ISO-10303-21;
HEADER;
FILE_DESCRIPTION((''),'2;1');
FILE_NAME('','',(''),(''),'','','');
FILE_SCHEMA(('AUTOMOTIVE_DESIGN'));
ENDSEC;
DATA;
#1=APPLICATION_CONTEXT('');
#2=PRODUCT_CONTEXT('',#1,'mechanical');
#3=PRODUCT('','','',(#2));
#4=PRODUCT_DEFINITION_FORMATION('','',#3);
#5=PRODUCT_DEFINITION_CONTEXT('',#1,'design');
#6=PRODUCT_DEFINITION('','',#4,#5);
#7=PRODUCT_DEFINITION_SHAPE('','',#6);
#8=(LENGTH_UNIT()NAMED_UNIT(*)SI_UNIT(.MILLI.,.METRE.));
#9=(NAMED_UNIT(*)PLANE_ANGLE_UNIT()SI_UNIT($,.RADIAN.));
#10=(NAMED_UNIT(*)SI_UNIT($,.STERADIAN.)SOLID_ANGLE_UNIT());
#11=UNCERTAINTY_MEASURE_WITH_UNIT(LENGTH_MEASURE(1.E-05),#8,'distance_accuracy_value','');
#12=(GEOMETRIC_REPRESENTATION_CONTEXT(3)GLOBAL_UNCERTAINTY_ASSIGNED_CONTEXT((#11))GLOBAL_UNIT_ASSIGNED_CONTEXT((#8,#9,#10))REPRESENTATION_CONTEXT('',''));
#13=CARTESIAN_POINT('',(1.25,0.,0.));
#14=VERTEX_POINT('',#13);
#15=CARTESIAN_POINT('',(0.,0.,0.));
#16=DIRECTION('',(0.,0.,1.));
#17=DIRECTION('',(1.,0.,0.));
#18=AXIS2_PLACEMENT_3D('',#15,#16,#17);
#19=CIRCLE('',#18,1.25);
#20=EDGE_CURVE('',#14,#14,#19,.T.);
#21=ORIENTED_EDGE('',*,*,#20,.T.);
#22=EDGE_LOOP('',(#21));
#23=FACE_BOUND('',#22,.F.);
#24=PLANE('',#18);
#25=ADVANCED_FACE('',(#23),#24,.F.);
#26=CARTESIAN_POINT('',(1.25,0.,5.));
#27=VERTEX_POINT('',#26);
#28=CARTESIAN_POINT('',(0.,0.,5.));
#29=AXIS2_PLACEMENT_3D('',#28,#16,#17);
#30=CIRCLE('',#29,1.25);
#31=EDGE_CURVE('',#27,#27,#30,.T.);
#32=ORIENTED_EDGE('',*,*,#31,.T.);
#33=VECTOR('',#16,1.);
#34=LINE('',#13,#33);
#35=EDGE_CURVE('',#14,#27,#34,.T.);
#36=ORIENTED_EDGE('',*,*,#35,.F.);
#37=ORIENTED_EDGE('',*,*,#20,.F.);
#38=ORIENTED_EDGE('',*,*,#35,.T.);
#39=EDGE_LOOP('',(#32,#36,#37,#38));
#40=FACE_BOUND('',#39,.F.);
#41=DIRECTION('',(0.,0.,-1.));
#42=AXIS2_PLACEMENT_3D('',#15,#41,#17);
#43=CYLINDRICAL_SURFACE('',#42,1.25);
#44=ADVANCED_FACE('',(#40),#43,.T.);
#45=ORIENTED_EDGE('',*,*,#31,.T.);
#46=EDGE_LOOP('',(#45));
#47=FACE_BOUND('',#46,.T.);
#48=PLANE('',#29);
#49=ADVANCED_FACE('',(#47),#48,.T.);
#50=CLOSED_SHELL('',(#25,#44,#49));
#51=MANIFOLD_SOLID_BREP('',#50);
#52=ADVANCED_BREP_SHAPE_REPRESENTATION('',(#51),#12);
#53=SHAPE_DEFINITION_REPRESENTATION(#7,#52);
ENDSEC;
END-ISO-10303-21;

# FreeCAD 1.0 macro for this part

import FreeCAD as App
import Part
import Sketcher
from FreeCAD import Vector
Q = App.Units.Quantity

doc = App.newDocument("Part")
body = doc.addObject("PartDesign::Body", "Body")

sketch1 = doc.addObject("Sketcher::SketchObject", "Sketch")
body.addObject(sketch1)
sketch1.AttachmentSupport = (doc.XY_Plane, [""])
sketch1.MapMode = "FlatFace"
sketch1.addGeometry(Part.Circle(Vector(0, 0, 0), Vector(0, 0, 1), 1.25), False)
sketch1.addConstraint([
    Sketcher.Constraint("Coincident", 0, 3, -1, 1),
    Sketcher.Constraint("Diameter", 0, Q("2.5 mm")),
])
pad1 = doc.addObject("PartDesign::Pad", "Pad")
body.addObject(pad1)
pad1.Profile = sketch1
pad1.Length = 5

doc.recompute()
